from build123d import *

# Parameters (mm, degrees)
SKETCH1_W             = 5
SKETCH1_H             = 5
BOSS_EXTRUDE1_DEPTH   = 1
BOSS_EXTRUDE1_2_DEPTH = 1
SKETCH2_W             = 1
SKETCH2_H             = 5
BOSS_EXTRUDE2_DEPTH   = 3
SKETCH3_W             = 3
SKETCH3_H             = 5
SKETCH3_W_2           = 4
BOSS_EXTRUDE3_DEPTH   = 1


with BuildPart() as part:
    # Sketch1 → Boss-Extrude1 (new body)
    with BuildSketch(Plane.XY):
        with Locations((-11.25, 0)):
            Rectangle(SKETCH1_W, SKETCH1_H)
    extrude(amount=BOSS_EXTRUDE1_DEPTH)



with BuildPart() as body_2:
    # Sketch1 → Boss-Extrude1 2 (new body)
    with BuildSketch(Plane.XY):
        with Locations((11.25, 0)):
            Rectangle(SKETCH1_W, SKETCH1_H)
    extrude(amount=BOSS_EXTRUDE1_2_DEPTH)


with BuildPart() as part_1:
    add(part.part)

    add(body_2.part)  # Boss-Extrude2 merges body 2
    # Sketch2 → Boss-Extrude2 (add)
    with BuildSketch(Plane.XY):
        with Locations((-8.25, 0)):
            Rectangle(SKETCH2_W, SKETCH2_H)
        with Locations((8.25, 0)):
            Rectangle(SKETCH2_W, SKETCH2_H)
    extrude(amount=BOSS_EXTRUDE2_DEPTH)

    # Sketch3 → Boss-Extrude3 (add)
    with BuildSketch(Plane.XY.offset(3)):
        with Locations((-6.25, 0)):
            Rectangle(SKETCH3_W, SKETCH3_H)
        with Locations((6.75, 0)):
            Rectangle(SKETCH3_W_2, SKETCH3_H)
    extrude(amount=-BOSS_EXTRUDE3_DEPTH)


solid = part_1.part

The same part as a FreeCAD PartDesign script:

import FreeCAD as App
import Part
import Sketcher

V = App.Vector
Q = App.Units.Quantity

doc = App.newDocument("Part")
params = doc.addObject("Spreadsheet::Sheet", "Params")
for row, (alias, value) in enumerate([
    ("sketch1_width", "5 mm"),
    ("pad1_length", "1 mm"),
    ("sketch2_width", "5 mm"),
    ("pad2_length", "1 mm"),
    ("sketch3_width", "1 mm"),
    ("sketch3_height", "5 mm"),
    ("pad3_length", "3 mm"),
    ("sketch4_width", "3 mm"),
    ("sketch4_width2", "4 mm"),
    ("sketch4_height", "5 mm"),
    ("pad4_length", "1 mm"),
], start=1):
    params.set(f"A{row}", alias)
    params.set(f"B{row}", "=" + value)
    params.setAlias(f"B{row}", alias)

body = doc.addObject("PartDesign::Body", "Body")

sketch1 = body.newObject("Sketcher::SketchObject", "Sketch")
sketch1.AttachmentSupport = (doc.getObject("XY_Plane"), [""])
sketch1.MapMode = "FlatFace"
sketch1.addGeometry(Part.LineSegment(V(-14, 2, 0), V(-14, -2, 0)), False)
sketch1.addGeometry(Part.LineSegment(V(-14, -2, 0), V(-9, -2, 0)), False)
sketch1.addGeometry(Part.LineSegment(V(-9, -2, 0), V(-9, 2, 0)), False)
sketch1.addGeometry(Part.LineSegment(V(-9, 2, 0), V(-14, 2, 0)), False)
sketch1.addConstraint(Sketcher.Constraint("Coincident", 0, 2, 1, 1))
sketch1.addConstraint(Sketcher.Constraint("Coincident", 1, 2, 2, 1))
sketch1.addConstraint(Sketcher.Constraint("Coincident", 2, 2, 3, 1))
sketch1.addConstraint(Sketcher.Constraint("Coincident", 3, 2, 0, 1))
sketch1.addConstraint(Sketcher.Constraint("Vertical", 0))
sketch1.addConstraint(Sketcher.Constraint("Horizontal", 1))
sketch1.addConstraint(Sketcher.Constraint("Vertical", 2))
sketch1.addConstraint(Sketcher.Constraint("Horizontal", 3))
sketch1.addConstraint(Sketcher.Constraint("Equal", 3, 0))
sketch1.addConstraint(Sketcher.Constraint("DistanceX", 1, 1, 1, 2, Q("5 mm")))
sketch1.addConstraint(Sketcher.Constraint("DistanceY", 0, 2, -1, 1, Q("2.5 mm")))
sketch1.addConstraint(Sketcher.Constraint("DistanceX", 0, 2, -1, 1, Q("13.75 mm")))
sketch1.setExpression("Constraints[9]", "Params.sketch1_width")
pad1 = body.newObject("PartDesign::Pad", "Pad")
pad1.Profile = sketch1
pad1.setExpression("Length", "Params.pad1_length")
body2 = doc.addObject("PartDesign::Body", "Body001")

sketch2 = body2.newObject("Sketcher::SketchObject", "Sketch001")
sketch2.AttachmentSupport = (doc.getObject("XY_Plane001"), [""])
sketch2.MapMode = "FlatFace"
sketch2.addGeometry(Part.LineSegment(V(9, 2, 0), V(9, -2, 0)), False)
sketch2.addGeometry(Part.LineSegment(V(9, -2, 0), V(14, -2, 0)), False)
sketch2.addGeometry(Part.LineSegment(V(14, -2, 0), V(14, 2, 0)), False)
sketch2.addGeometry(Part.LineSegment(V(14, 2, 0), V(9, 2, 0)), False)
sketch2.addConstraint(Sketcher.Constraint("Coincident", 0, 2, 1, 1))
sketch2.addConstraint(Sketcher.Constraint("Coincident", 1, 2, 2, 1))
sketch2.addConstraint(Sketcher.Constraint("Coincident", 2, 2, 3, 1))
sketch2.addConstraint(Sketcher.Constraint("Coincident", 3, 2, 0, 1))
sketch2.addConstraint(Sketcher.Constraint("Vertical", 0))
sketch2.addConstraint(Sketcher.Constraint("Horizontal", 1))
sketch2.addConstraint(Sketcher.Constraint("Vertical", 2))
sketch2.addConstraint(Sketcher.Constraint("Horizontal", 3))
sketch2.addConstraint(Sketcher.Constraint("Equal", 3, 0))
sketch2.addConstraint(Sketcher.Constraint("DistanceX", 1, 1, 1, 2, Q("5 mm")))
sketch2.addConstraint(Sketcher.Constraint("DistanceY", 0, 2, -1, 1, Q("2.5 mm")))
sketch2.addConstraint(Sketcher.Constraint("DistanceX", -1, 1, 0, 2, Q("8.75 mm")))
sketch2.setExpression("Constraints[9]", "Params.sketch2_width")
pad2 = body2.newObject("PartDesign::Pad", "Pad001")
pad2.Profile = sketch2
pad2.setExpression("Length", "Params.pad2_length")
body.AllowCompound = True
doc.recompute()

boolean = body.newObject("PartDesign::Boolean", "Boolean")
boolean.Type = "Fuse"
boolean.addObjects([body2])

sketch3 = body.newObject("Sketcher::SketchObject", "Sketch002")
sketch3.AttachmentSupport = (doc.getObject("XY_Plane"), [""])
sketch3.MapMode = "FlatFace"
sketch3.addGeometry(Part.LineSegment(V(-8.8, 2.5, 0), V(-8.8, -2.5, 0)), False)
sketch3.addGeometry(Part.LineSegment(V(-8.8, -2.5, 0), V(-7.8, -2.5, 0)), False)
sketch3.addGeometry(Part.LineSegment(V(-7.8, -2.5, 0), V(-7.8, 2.5, 0)), False)
sketch3.addGeometry(Part.LineSegment(V(-7.8, 2.5, 0), V(-8.8, 2.5, 0)), False)
sketch3.addGeometry(Part.LineSegment(V(7.8, 2.5, 0), V(7.8, -2.5, 0)), False)
sketch3.addGeometry(Part.LineSegment(V(7.8, -2.5, 0), V(8.8, -2.5, 0)), False)
sketch3.addGeometry(Part.LineSegment(V(8.8, -2.5, 0), V(8.8, 2.5, 0)), False)
sketch3.addGeometry(Part.LineSegment(V(8.8, 2.5, 0), V(7.8, 2.5, 0)), False)
sketch3.addConstraint(Sketcher.Constraint("Coincident", 0, 2, 1, 1))
sketch3.addConstraint(Sketcher.Constraint("Coincident", 1, 2, 2, 1))
sketch3.addConstraint(Sketcher.Constraint("Coincident", 2, 2, 3, 1))
sketch3.addConstraint(Sketcher.Constraint("Coincident", 3, 2, 0, 1))
sketch3.addConstraint(Sketcher.Constraint("Coincident", 4, 2, 5, 1))
sketch3.addConstraint(Sketcher.Constraint("Coincident", 5, 2, 6, 1))
sketch3.addConstraint(Sketcher.Constraint("Coincident", 6, 2, 7, 1))
sketch3.addConstraint(Sketcher.Constraint("Coincident", 7, 2, 4, 1))
sketch3.addConstraint(Sketcher.Constraint("Vertical", 0))
sketch3.addConstraint(Sketcher.Constraint("Horizontal", 1))
sketch3.addConstraint(Sketcher.Constraint("Vertical", 2))
sketch3.addConstraint(Sketcher.Constraint("Horizontal", 3))
sketch3.addConstraint(Sketcher.Constraint("Vertical", 4))
sketch3.addConstraint(Sketcher.Constraint("Horizontal", 5))
sketch3.addConstraint(Sketcher.Constraint("Vertical", 6))
sketch3.addConstraint(Sketcher.Constraint("Horizontal", 7))
sketch3.addConstraint(Sketcher.Constraint("Symmetric", 2, 2, 4, 2, -1, 1))
sketch3.addConstraint(Sketcher.Constraint("Symmetric", 0, 2, 6, 2, -1, 1))
sketch3.addConstraint(Sketcher.Constraint("Horizontal", 1, 2, 4, 2))
sketch3.addConstraint(Sketcher.Constraint("DistanceX", 1, 1, 1, 2, Q("1 mm")))
sketch3.addConstraint(Sketcher.Constraint("DistanceY", 0, 2, 0, 1, Q("5 mm")))
sketch3.addConstraint(Sketcher.Constraint("DistanceX", 1, 2, 4, 2, Q("15.5 mm")))
sketch3.setExpression("Constraints[19]", "Params.sketch3_width")
sketch3.setExpression("Constraints[20]", "Params.sketch3_height")
pad3 = body.newObject("PartDesign::Pad", "Pad002")
pad3.Profile = sketch3
pad3.setExpression("Length", "Params.pad3_length")

sketch4 = body.newObject("Sketcher::SketchObject", "Sketch003")
sketch4.AttachmentSupport = (doc.getObject("XY_Plane"), [""])
sketch4.MapMode = "FlatFace"
sketch4.AttachmentOffset = App.Placement(V(0, 0, 3), App.Rotation())
sketch4.addGeometry(Part.LineSegment(V(-7.8, 2.5, 0), V(-7.8, -2.5, 0)), False)
sketch4.addGeometry(Part.LineSegment(V(-7.8, -2.5, 0), V(-4.8, -2.5, 0)), False)
sketch4.addGeometry(Part.LineSegment(V(-4.8, -2.5, 0), V(-4.8, 2.5, 0)), False)
sketch4.addGeometry(Part.LineSegment(V(-4.8, 2.5, 0), V(-7.8, 2.5, 0)), False)
sketch4.addGeometry(Part.LineSegment(V(4.8, 2.5, 0), V(4.8, -2.5, 0)), False)
sketch4.addGeometry(Part.LineSegment(V(4.8, -2.5, 0), V(8.8, -2.5, 0)), False)
sketch4.addGeometry(Part.LineSegment(V(8.8, -2.5, 0), V(8.8, 2.5, 0)), False)
sketch4.addGeometry(Part.LineSegment(V(8.8, 2.5, 0), V(4.8, 2.5, 0)), False)
sketch4.addConstraint(Sketcher.Constraint("Coincident", 0, 2, 1, 1))
sketch4.addConstraint(Sketcher.Constraint("Coincident", 1, 2, 2, 1))
sketch4.addConstraint(Sketcher.Constraint("Coincident", 2, 2, 3, 1))
sketch4.addConstraint(Sketcher.Constraint("Coincident", 3, 2, 0, 1))
sketch4.addConstraint(Sketcher.Constraint("Coincident", 4, 2, 5, 1))
sketch4.addConstraint(Sketcher.Constraint("Coincident", 5, 2, 6, 1))
sketch4.addConstraint(Sketcher.Constraint("Coincident", 6, 2, 7, 1))
sketch4.addConstraint(Sketcher.Constraint("Coincident", 7, 2, 4, 1))
sketch4.addConstraint(Sketcher.Constraint("Vertical", 0))
sketch4.addConstraint(Sketcher.Constraint("Horizontal", 1))
sketch4.addConstraint(Sketcher.Constraint("Vertical", 2))
sketch4.addConstraint(Sketcher.Constraint("Horizontal", 3))
sketch4.addConstraint(Sketcher.Constraint("Vertical", 4))
sketch4.addConstraint(Sketcher.Constraint("Horizontal", 5))
sketch4.addConstraint(Sketcher.Constraint("Vertical", 6))
sketch4.addConstraint(Sketcher.Constraint("Horizontal", 7))
sketch4.addConstraint(Sketcher.Constraint("Symmetric", 2, 2, 4, 2, -1, 1))
sketch4.addConstraint(Sketcher.Constraint("Horizontal", 1, 2, 4, 2))
sketch4.addConstraint(Sketcher.Constraint("Horizontal", 3, 2, 6, 2))
sketch4.addConstraint(Sketcher.Constraint("DistanceX", 1, 1, 1, 2, Q("3 mm")))
sketch4.addConstraint(Sketcher.Constraint("DistanceX", 5, 1, 5, 2, Q("4 mm")))
sketch4.addConstraint(Sketcher.Constraint("DistanceY", 0, 2, 0, 1, Q("5 mm")))
sketch4.addConstraint(Sketcher.Constraint("DistanceX", 1, 2, 4, 2, Q("9.5 mm")))
sketch4.setExpression("Constraints[19]", "Params.sketch4_width")
sketch4.setExpression("Constraints[20]", "Params.sketch4_width2")
sketch4.setExpression("Constraints[21]", "Params.sketch4_height")
pad4 = body.newObject("PartDesign::Pad", "Pad003")
pad4.Profile = sketch4
pad4.setExpression("Length", "Params.pad4_length")
pad4.Reversed = True

doc.recompute()
